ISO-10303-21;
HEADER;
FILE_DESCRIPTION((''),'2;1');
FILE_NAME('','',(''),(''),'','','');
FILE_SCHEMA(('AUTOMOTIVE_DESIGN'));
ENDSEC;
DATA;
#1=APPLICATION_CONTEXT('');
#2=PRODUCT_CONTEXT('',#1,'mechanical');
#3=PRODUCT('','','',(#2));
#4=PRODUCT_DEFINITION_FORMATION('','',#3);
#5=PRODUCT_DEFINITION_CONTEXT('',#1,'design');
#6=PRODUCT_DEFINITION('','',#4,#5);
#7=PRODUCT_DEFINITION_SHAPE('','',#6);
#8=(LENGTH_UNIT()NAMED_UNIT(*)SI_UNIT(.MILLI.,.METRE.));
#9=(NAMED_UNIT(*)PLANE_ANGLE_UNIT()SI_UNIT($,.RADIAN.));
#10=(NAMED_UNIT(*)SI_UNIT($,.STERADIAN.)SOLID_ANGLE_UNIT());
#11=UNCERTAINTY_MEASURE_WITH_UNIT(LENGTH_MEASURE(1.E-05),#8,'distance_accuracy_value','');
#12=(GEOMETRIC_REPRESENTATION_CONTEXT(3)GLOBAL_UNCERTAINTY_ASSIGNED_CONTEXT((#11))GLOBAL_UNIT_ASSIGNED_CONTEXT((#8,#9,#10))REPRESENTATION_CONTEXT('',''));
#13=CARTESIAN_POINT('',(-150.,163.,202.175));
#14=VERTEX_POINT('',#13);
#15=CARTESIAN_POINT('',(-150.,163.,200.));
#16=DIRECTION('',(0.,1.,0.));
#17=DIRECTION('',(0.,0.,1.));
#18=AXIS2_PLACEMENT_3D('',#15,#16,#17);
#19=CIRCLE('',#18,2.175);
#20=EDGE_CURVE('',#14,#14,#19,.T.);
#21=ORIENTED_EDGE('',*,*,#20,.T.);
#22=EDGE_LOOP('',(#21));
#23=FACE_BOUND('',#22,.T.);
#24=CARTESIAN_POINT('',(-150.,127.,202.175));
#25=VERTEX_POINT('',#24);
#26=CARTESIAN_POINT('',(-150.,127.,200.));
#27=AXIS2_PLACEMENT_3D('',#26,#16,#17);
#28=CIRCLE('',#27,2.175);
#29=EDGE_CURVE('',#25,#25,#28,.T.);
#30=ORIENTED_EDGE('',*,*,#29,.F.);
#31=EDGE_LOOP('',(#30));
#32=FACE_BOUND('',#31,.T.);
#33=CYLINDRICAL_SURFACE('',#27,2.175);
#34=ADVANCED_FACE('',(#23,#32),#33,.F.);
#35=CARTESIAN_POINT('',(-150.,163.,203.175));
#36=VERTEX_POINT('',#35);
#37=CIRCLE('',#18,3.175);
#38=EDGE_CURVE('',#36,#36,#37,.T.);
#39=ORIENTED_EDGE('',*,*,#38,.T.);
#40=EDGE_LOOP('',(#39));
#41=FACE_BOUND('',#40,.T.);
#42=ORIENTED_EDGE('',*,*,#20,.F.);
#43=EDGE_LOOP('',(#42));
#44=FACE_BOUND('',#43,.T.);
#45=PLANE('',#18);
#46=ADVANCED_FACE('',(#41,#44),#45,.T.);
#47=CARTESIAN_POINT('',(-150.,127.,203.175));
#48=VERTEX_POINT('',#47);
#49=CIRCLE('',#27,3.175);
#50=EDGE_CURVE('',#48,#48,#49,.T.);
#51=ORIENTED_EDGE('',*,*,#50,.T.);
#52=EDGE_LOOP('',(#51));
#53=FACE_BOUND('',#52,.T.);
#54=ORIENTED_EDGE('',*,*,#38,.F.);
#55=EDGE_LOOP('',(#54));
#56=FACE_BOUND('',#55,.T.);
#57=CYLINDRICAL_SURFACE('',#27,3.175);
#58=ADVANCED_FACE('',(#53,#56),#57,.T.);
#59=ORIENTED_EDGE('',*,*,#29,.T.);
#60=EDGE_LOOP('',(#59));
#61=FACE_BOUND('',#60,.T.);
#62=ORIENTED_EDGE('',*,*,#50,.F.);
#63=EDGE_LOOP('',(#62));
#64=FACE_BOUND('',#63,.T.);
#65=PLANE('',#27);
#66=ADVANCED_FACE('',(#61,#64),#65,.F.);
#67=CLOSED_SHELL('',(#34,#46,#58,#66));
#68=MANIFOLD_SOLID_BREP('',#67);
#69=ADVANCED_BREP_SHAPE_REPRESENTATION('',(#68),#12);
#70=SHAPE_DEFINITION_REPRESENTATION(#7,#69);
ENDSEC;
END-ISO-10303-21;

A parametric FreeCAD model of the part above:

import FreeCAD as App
import Part
import Sketcher
from FreeCAD import Vector
Q = App.Units.Quantity

doc = App.newDocument("Part")
body = doc.addObject("PartDesign::Body", "Body")

# Sketch on XZ plane
sketch1 = body.newObject("Sketcher::SketchObject", "Sketch")
sketch1.AttachmentSupport = (doc.getObject("XZ_Plane"), [""])
sketch1.MapMode = "FlatFace"
sketch1.AttachmentOffset = App.Placement(Vector(0, 0, -127), App.Rotation())
sketch1.addGeometry(Part.Circle(Vector(-150, 200, 0), Vector(0, 0, 1), 3.2), False)
sketch1.addGeometry(Part.Circle(Vector(-150, 200, 0), Vector(0, 0, 1), 2.2), False)
sketch1.addConstraint(Sketcher.Constraint("Coincident", 1, 3, 0, 3))
sketch1.addConstraint(Sketcher.Constraint("Diameter", 0, Q("6.35 mm")))
sketch1.addConstraint(Sketcher.Constraint("Diameter", 1, Q("4.35 mm")))
sketch1.addConstraint(Sketcher.Constraint("DistanceX", 0, 3, -1, 1, Q("150 mm")))
sketch1.addConstraint(Sketcher.Constraint("DistanceY", -1, 1, 0, 3, Q("200 mm")))

# Sketch on XY plane
sketch2 = body.newObject("Sketcher::SketchObject", "Sketch001")
sketch2.AttachmentSupport = (doc.getObject("XY_Plane"), [""])
sketch2.MapMode = "FlatFace"
sketch2.AttachmentOffset = App.Placement(Vector(0, 0, 200), App.Rotation())
sketch2.addGeometry(Part.LineSegment(Vector(-150, 127, 0), Vector(-150, 163, 0)), False)
sketch2.addConstraint(Sketcher.Constraint("Vertical", 0))
sketch2.addConstraint(Sketcher.Constraint("DistanceY", 0, 1, 0, 2, Q("36 mm")))
sketch2.addConstraint(Sketcher.Constraint("DistanceX", 0, 1, -1, 1, Q("150 mm")))
sketch2.addConstraint(Sketcher.Constraint("DistanceY", -1, 1, 0, 1, Q("127 mm")))
doc.recompute()

additivepipe = body.newObject("PartDesign::AdditivePipe", "AdditivePipe")
additivepipe.Profile = sketch1
additivepipe.Spine = (sketch2, ["Edge1"])

doc.recompute()
